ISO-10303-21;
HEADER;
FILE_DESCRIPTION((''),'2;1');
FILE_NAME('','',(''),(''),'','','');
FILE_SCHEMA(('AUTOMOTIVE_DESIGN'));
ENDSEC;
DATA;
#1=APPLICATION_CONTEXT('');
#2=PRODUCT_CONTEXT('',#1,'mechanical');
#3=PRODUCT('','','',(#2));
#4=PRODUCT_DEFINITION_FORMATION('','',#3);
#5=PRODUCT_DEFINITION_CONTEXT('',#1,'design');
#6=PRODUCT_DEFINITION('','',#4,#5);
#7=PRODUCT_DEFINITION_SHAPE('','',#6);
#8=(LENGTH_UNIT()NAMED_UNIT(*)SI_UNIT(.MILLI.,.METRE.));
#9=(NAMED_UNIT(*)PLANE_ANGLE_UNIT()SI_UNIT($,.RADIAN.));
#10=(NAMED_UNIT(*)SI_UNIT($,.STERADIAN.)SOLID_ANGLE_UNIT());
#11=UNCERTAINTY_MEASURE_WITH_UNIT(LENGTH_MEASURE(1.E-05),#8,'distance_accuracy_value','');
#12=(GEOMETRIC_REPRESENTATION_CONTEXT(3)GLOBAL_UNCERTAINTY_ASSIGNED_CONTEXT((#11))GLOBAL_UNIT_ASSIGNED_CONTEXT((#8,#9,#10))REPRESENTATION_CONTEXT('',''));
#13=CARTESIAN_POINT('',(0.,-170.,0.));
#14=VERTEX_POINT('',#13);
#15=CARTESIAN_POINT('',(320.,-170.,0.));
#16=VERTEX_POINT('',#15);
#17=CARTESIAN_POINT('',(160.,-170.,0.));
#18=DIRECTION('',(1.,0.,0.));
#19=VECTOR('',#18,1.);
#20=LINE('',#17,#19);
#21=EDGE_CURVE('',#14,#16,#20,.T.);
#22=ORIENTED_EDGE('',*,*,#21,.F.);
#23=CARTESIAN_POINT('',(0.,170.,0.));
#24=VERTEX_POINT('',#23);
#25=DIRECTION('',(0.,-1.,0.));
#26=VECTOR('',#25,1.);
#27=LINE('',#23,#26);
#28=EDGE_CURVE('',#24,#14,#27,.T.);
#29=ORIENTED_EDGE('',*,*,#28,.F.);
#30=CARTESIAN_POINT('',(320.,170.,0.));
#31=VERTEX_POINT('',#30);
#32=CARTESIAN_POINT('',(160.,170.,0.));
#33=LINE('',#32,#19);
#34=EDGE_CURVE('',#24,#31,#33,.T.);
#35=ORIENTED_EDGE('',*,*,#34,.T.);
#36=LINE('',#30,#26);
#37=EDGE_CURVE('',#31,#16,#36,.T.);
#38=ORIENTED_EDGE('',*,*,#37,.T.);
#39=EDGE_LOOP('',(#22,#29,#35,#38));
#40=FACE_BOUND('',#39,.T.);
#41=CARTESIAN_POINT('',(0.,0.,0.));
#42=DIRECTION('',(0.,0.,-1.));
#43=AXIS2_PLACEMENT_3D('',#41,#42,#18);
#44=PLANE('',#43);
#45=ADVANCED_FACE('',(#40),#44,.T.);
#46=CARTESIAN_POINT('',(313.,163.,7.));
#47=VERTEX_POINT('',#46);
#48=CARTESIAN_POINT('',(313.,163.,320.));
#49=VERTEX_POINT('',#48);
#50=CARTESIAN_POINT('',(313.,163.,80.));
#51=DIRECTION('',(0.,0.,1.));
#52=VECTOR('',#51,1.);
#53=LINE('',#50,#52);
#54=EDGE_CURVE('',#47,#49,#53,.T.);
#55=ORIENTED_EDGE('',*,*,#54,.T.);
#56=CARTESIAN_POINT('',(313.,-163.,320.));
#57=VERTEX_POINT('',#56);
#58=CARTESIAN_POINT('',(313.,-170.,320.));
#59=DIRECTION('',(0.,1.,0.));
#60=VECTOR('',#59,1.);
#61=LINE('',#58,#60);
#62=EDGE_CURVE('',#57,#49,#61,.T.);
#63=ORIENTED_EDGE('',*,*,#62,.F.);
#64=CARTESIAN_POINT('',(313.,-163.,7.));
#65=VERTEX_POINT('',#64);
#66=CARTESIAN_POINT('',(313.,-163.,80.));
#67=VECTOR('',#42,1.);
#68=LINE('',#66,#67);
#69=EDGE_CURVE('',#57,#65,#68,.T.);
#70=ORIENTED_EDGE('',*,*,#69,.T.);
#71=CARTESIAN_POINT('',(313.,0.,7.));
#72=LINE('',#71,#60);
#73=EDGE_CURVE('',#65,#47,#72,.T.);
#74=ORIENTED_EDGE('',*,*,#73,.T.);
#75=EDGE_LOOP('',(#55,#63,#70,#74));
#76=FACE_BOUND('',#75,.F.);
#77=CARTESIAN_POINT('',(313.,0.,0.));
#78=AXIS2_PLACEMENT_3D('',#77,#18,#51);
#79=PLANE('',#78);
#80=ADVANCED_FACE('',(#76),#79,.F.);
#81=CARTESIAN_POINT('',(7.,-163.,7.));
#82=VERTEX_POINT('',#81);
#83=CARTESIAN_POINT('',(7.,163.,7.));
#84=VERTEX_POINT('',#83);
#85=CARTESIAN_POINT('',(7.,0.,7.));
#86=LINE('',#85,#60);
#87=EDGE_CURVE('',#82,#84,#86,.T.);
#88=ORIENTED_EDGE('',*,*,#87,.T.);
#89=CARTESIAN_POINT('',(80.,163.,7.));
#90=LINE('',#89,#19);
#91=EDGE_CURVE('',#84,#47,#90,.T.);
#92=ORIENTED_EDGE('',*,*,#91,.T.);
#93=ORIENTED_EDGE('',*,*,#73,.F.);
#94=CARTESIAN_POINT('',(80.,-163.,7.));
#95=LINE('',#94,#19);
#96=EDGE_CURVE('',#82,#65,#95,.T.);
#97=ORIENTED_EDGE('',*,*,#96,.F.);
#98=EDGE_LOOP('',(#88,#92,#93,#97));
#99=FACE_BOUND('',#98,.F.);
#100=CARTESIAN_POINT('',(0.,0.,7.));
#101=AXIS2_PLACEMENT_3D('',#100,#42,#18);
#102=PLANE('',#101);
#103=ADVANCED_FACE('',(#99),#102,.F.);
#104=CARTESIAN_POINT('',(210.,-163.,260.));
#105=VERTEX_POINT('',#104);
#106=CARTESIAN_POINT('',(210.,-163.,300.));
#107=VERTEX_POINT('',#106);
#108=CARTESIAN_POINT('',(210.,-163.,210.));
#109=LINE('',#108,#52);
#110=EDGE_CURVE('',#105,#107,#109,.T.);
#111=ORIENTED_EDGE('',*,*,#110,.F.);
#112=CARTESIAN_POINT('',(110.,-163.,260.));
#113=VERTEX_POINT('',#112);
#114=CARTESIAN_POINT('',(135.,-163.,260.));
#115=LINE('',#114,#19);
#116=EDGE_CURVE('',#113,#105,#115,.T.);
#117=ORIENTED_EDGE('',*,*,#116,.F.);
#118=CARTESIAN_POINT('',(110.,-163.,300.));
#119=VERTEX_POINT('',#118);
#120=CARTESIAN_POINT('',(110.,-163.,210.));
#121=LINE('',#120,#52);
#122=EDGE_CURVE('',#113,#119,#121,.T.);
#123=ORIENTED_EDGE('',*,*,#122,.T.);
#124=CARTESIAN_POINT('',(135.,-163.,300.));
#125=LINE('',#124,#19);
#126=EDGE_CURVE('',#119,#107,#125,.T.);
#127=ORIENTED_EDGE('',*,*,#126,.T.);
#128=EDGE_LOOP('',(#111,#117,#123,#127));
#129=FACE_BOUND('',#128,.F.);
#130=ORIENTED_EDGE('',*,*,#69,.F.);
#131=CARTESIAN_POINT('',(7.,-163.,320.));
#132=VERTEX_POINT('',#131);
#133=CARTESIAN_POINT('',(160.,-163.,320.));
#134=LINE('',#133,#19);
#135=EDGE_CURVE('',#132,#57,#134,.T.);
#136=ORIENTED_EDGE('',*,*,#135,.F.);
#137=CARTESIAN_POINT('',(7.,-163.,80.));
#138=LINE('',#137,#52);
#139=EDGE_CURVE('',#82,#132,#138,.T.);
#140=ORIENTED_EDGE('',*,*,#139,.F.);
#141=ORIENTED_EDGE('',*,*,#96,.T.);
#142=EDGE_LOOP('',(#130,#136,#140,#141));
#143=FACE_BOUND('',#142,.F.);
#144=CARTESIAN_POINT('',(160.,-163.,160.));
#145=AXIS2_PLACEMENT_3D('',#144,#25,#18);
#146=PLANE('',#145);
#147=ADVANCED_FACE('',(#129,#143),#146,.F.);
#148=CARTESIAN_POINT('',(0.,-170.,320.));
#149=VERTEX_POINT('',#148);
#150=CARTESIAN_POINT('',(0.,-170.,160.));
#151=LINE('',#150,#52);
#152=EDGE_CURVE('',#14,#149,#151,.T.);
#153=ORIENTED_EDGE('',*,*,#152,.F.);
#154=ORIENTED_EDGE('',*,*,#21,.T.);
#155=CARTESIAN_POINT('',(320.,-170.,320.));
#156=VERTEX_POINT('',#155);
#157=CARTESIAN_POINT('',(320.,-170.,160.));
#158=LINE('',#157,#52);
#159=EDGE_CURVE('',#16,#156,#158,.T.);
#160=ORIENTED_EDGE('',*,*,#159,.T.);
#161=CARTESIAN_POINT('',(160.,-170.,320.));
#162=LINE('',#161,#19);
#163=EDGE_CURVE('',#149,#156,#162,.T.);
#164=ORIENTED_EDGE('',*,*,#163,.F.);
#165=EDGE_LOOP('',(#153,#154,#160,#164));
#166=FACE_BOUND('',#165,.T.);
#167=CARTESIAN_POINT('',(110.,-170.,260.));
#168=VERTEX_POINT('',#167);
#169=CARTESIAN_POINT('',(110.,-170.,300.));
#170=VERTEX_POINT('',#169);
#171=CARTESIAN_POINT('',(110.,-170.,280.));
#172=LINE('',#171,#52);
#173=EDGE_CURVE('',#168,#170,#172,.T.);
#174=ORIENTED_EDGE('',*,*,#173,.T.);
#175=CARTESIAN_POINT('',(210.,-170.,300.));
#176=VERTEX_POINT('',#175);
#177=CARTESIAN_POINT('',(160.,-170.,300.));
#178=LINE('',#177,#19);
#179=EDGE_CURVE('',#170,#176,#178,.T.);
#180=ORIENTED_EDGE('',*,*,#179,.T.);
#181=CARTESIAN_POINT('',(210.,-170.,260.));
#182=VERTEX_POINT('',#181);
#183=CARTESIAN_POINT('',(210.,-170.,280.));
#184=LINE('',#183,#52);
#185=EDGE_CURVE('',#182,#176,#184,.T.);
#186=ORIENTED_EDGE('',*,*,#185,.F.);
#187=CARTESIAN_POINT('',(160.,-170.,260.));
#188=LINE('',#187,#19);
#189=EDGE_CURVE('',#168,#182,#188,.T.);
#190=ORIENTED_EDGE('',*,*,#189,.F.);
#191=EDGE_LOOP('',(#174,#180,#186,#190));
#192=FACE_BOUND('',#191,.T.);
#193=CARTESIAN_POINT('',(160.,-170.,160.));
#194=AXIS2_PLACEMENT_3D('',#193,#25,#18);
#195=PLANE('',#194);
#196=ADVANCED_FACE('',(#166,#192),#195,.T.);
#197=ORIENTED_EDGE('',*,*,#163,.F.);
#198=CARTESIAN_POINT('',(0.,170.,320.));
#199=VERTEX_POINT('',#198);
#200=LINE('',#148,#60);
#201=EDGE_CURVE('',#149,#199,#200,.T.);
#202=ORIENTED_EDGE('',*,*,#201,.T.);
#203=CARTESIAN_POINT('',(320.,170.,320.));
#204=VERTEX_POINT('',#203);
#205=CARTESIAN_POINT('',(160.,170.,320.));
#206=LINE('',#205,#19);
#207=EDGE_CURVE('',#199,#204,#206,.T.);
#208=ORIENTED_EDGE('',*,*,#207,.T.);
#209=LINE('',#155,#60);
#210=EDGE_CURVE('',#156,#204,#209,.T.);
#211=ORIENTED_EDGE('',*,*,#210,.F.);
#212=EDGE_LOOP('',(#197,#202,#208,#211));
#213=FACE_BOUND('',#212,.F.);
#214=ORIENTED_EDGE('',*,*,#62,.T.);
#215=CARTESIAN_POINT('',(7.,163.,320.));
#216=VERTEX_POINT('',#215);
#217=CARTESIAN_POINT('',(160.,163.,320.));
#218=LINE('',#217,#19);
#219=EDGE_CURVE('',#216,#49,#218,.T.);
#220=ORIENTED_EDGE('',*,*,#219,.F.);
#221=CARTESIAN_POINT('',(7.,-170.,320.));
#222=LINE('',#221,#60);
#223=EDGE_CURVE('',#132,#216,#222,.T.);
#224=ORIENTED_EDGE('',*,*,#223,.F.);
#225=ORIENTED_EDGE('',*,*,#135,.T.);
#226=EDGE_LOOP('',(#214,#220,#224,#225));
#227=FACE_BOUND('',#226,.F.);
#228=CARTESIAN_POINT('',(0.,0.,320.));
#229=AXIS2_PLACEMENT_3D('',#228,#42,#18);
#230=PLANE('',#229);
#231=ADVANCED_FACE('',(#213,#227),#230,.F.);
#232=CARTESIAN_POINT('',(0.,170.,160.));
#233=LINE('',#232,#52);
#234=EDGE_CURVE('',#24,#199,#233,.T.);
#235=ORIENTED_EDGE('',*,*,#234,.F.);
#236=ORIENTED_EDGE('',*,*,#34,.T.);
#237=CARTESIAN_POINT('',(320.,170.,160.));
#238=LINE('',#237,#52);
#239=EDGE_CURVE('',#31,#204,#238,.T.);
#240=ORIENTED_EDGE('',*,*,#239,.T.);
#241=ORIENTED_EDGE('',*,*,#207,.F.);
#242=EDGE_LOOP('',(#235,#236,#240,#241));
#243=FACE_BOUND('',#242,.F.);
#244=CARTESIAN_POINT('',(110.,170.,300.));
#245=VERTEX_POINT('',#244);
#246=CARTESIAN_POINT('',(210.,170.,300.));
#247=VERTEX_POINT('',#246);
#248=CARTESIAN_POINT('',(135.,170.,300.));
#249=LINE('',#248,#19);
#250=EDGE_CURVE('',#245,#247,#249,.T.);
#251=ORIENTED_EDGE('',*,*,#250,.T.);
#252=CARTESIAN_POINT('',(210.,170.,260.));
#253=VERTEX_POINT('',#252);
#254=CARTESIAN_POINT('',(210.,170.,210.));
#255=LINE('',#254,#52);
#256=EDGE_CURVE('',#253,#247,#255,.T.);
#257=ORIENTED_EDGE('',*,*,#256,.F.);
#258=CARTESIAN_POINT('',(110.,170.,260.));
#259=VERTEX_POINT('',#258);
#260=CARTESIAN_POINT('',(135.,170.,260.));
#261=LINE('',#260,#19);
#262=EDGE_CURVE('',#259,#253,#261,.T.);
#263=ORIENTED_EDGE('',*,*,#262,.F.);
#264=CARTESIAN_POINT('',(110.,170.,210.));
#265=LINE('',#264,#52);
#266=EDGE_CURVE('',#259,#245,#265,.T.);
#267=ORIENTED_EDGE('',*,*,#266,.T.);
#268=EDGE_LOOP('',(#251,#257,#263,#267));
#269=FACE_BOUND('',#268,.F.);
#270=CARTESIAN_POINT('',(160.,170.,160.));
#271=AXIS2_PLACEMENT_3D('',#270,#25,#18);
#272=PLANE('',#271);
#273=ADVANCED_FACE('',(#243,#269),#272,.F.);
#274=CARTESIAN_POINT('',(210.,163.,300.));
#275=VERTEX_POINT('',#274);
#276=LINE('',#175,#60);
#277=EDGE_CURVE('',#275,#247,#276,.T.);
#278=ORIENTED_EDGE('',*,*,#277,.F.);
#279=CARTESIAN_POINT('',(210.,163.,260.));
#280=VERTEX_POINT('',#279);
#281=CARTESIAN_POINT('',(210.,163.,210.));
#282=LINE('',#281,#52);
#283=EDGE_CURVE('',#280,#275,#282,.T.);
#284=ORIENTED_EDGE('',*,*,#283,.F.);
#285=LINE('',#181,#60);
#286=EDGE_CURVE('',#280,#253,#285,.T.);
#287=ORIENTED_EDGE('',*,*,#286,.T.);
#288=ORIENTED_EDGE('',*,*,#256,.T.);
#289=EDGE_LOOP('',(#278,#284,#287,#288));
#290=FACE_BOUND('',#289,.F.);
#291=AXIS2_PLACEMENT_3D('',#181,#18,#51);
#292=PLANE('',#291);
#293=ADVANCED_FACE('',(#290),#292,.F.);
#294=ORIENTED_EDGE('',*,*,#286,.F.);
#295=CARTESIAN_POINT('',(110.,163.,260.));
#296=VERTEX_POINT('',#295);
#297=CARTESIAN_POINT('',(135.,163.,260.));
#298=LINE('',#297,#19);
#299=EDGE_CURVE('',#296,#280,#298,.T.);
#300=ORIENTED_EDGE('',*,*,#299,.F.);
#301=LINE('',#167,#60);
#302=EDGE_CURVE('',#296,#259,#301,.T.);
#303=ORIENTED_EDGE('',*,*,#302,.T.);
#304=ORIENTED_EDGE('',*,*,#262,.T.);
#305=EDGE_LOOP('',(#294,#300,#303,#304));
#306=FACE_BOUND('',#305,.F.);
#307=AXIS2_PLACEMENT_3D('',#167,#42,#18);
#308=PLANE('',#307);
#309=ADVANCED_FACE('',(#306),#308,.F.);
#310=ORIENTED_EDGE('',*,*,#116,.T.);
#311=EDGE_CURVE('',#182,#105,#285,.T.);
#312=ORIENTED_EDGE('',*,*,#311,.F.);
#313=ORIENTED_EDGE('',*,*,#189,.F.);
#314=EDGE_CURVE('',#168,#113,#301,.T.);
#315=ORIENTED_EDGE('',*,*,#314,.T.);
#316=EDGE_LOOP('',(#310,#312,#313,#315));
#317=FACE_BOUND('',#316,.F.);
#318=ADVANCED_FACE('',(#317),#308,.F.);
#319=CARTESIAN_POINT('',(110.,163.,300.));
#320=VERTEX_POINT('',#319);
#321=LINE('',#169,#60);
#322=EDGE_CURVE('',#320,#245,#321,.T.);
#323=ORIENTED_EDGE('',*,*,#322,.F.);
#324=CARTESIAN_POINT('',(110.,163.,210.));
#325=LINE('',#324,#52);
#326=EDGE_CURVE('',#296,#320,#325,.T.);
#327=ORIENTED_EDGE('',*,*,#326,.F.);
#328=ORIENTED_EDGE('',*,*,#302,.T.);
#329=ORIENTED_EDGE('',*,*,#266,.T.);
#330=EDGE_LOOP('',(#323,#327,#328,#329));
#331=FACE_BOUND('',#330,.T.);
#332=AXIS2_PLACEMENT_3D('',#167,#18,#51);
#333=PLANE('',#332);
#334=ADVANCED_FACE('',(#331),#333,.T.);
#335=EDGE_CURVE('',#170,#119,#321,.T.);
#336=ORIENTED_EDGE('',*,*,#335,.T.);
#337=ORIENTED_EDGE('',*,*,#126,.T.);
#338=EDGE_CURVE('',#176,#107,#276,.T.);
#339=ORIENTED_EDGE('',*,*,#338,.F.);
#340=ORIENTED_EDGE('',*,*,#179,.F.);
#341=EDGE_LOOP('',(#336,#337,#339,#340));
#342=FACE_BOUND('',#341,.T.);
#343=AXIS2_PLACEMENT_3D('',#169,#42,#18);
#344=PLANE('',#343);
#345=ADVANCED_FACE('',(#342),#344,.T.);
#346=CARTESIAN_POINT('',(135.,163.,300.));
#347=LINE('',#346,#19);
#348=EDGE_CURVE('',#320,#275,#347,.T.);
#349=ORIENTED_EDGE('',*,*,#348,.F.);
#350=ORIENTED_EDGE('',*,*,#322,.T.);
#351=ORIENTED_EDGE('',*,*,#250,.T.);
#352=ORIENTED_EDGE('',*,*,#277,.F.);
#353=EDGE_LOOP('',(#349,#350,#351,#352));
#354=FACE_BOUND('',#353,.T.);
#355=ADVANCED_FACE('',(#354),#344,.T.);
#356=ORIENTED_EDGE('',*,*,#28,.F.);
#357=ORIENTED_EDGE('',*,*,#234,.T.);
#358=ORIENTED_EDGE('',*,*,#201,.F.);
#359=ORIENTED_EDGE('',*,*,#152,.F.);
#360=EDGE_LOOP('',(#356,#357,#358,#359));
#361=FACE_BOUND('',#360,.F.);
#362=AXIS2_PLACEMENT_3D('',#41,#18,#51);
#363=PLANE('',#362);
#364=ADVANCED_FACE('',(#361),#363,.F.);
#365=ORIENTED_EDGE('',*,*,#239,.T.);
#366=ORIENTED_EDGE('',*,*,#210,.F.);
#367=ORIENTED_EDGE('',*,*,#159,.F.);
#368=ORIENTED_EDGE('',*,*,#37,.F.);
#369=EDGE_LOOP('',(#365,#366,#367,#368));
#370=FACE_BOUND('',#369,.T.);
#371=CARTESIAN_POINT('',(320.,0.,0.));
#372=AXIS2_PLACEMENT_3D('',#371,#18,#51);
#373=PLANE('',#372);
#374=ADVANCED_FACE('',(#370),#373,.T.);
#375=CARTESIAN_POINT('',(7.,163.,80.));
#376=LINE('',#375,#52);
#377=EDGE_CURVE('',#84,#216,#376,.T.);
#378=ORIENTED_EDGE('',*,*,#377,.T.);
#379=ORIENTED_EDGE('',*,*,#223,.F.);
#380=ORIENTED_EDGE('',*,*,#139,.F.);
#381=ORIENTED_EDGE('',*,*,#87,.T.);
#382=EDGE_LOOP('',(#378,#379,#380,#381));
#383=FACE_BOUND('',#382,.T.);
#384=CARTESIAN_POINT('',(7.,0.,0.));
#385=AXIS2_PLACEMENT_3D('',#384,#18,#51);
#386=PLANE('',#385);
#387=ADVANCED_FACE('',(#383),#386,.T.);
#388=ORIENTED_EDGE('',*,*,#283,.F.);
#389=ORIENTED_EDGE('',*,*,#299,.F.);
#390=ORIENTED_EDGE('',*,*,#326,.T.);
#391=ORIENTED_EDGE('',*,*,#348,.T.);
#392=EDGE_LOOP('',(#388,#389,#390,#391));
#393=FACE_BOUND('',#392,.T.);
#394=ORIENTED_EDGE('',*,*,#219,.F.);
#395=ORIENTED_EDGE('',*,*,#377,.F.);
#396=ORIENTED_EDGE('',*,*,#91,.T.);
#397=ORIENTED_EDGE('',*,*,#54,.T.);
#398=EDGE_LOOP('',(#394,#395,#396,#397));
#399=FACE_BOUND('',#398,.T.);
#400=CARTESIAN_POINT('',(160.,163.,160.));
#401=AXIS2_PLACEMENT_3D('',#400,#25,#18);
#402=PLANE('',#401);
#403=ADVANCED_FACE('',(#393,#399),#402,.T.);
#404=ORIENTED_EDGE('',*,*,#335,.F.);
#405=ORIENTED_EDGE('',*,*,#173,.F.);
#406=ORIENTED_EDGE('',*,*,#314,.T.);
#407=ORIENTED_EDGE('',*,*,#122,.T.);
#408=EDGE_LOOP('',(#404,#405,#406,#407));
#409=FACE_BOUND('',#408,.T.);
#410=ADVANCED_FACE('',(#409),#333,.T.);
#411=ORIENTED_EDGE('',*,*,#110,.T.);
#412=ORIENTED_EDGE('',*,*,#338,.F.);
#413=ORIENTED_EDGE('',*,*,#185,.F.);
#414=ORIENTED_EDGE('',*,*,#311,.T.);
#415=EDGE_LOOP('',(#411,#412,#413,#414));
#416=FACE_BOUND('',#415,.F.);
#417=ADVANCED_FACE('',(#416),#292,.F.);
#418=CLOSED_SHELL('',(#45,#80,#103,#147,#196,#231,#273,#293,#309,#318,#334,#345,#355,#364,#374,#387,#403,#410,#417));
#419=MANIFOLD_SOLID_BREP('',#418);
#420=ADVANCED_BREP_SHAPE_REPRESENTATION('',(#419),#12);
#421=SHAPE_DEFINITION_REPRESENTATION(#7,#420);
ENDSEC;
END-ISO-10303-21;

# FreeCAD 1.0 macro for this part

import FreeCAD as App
import Part
import Sketcher
Q = App.Units.Quantity


def faces_at(feature, points):
    """Names of the faces that lie closest to the given points."""
    faces = feature.Shape.Faces
    near = lambda p: min(range(len(faces)), key=lambda i: faces[i].distToShape(Part.Vertex(*p))[0])
    return sorted({f"Face{near(p) + 1}" for p in points})

doc = App.newDocument("Part")
body = doc.addObject("PartDesign::Body", "Body")

# Sketch on XZ plane
sketch1 = body.newObject("Sketcher::SketchObject", "Sketch")
sketch1.AttachmentSupport = (doc.getObject("XZ_Plane"), [""])
sketch1.MapMode = "FlatFace"
sketch1.addGeometry([
    Part.LineSegment(App.Vector(0, 320, 0), App.Vector(0, 0, 0)),
    Part.LineSegment(App.Vector(0, 0, 0), App.Vector(320, 0, 0)),
    Part.LineSegment(App.Vector(320, 0, 0), App.Vector(320, 320, 0)),
    Part.LineSegment(App.Vector(320, 320, 0), App.Vector(0, 320, 0)),
], False)
sketch1.addConstraint([
    Sketcher.Constraint("Coincident", 0, 2, 1, 1),
    Sketcher.Constraint("Coincident", 1, 2, 2, 1),
    Sketcher.Constraint("Coincident", 2, 2, 3, 1),
    Sketcher.Constraint("Coincident", 3, 2, 0, 1),
    Sketcher.Constraint("Vertical", 0),
    Sketcher.Constraint("Horizontal", 1),
    Sketcher.Constraint("Vertical", 2),
    Sketcher.Constraint("Horizontal", 3),
    Sketcher.Constraint("Coincident", 0, 2, -1, 1),
    Sketcher.Constraint("Equal", 3, 0),
    Sketcher.Constraint("DistanceX", 1, 1, 1, 2, Q("320 mm")),
])
pad1 = body.newObject("PartDesign::Pad", "Pad")
pad1.Profile = sketch1
pad1.Length = 340
pad1.Midplane = True
doc.recompute()

thickness = body.newObject("PartDesign::Thickness", "Thickness")
thickness.Base = (pad1, faces_at(pad1, [(160, 0, 320)]))
thickness.Value = 7
thickness.Reversed = True
thickness.Join = "Arc"

# Sketch on XZ plane
sketch2 = body.newObject("Sketcher::SketchObject", "Sketch001")
sketch2.AttachmentSupport = (doc.getObject("XZ_Plane"), [""])
sketch2.MapMode = "FlatFace"
sketch2.AttachmentOffset = App.Placement(App.Vector(0, 0, 170), App.Rotation())
sketch2.addGeometry([
    Part.LineSegment(App.Vector(110, 300, 0), App.Vector(110, 260, 0)),
    Part.LineSegment(App.Vector(110, 260, 0), App.Vector(210, 260, 0)),
    Part.LineSegment(App.Vector(210, 260, 0), App.Vector(210, 300, 0)),
    Part.LineSegment(App.Vector(210, 300, 0), App.Vector(110, 300, 0)),
], False)
sketch2.addConstraint([
    Sketcher.Constraint("Coincident", 0, 2, 1, 1),
    Sketcher.Constraint("Coincident", 1, 2, 2, 1),
    Sketcher.Constraint("Coincident", 2, 2, 3, 1),
    Sketcher.Constraint("Coincident", 3, 2, 0, 1),
    Sketcher.Constraint("Vertical", 0),
    Sketcher.Constraint("Horizontal", 1),
    Sketcher.Constraint("Vertical", 2),
    Sketcher.Constraint("Horizontal", 3),
    Sketcher.Constraint("DistanceX", 1, 1, 1, 2, Q("100 mm")),
    Sketcher.Constraint("DistanceY", 0, 2, 0, 1, Q("40 mm")),
    Sketcher.Constraint("DistanceX", -1, 1, 0, 2, Q("110 mm")),
    Sketcher.Constraint("DistanceY", -1, 1, 0, 2, Q("260 mm")),
])
pocket1 = body.newObject("PartDesign::Pocket", "Pocket")
pocket1.Profile = sketch2
pocket1.Type = "ThroughAll"

doc.recompute()
